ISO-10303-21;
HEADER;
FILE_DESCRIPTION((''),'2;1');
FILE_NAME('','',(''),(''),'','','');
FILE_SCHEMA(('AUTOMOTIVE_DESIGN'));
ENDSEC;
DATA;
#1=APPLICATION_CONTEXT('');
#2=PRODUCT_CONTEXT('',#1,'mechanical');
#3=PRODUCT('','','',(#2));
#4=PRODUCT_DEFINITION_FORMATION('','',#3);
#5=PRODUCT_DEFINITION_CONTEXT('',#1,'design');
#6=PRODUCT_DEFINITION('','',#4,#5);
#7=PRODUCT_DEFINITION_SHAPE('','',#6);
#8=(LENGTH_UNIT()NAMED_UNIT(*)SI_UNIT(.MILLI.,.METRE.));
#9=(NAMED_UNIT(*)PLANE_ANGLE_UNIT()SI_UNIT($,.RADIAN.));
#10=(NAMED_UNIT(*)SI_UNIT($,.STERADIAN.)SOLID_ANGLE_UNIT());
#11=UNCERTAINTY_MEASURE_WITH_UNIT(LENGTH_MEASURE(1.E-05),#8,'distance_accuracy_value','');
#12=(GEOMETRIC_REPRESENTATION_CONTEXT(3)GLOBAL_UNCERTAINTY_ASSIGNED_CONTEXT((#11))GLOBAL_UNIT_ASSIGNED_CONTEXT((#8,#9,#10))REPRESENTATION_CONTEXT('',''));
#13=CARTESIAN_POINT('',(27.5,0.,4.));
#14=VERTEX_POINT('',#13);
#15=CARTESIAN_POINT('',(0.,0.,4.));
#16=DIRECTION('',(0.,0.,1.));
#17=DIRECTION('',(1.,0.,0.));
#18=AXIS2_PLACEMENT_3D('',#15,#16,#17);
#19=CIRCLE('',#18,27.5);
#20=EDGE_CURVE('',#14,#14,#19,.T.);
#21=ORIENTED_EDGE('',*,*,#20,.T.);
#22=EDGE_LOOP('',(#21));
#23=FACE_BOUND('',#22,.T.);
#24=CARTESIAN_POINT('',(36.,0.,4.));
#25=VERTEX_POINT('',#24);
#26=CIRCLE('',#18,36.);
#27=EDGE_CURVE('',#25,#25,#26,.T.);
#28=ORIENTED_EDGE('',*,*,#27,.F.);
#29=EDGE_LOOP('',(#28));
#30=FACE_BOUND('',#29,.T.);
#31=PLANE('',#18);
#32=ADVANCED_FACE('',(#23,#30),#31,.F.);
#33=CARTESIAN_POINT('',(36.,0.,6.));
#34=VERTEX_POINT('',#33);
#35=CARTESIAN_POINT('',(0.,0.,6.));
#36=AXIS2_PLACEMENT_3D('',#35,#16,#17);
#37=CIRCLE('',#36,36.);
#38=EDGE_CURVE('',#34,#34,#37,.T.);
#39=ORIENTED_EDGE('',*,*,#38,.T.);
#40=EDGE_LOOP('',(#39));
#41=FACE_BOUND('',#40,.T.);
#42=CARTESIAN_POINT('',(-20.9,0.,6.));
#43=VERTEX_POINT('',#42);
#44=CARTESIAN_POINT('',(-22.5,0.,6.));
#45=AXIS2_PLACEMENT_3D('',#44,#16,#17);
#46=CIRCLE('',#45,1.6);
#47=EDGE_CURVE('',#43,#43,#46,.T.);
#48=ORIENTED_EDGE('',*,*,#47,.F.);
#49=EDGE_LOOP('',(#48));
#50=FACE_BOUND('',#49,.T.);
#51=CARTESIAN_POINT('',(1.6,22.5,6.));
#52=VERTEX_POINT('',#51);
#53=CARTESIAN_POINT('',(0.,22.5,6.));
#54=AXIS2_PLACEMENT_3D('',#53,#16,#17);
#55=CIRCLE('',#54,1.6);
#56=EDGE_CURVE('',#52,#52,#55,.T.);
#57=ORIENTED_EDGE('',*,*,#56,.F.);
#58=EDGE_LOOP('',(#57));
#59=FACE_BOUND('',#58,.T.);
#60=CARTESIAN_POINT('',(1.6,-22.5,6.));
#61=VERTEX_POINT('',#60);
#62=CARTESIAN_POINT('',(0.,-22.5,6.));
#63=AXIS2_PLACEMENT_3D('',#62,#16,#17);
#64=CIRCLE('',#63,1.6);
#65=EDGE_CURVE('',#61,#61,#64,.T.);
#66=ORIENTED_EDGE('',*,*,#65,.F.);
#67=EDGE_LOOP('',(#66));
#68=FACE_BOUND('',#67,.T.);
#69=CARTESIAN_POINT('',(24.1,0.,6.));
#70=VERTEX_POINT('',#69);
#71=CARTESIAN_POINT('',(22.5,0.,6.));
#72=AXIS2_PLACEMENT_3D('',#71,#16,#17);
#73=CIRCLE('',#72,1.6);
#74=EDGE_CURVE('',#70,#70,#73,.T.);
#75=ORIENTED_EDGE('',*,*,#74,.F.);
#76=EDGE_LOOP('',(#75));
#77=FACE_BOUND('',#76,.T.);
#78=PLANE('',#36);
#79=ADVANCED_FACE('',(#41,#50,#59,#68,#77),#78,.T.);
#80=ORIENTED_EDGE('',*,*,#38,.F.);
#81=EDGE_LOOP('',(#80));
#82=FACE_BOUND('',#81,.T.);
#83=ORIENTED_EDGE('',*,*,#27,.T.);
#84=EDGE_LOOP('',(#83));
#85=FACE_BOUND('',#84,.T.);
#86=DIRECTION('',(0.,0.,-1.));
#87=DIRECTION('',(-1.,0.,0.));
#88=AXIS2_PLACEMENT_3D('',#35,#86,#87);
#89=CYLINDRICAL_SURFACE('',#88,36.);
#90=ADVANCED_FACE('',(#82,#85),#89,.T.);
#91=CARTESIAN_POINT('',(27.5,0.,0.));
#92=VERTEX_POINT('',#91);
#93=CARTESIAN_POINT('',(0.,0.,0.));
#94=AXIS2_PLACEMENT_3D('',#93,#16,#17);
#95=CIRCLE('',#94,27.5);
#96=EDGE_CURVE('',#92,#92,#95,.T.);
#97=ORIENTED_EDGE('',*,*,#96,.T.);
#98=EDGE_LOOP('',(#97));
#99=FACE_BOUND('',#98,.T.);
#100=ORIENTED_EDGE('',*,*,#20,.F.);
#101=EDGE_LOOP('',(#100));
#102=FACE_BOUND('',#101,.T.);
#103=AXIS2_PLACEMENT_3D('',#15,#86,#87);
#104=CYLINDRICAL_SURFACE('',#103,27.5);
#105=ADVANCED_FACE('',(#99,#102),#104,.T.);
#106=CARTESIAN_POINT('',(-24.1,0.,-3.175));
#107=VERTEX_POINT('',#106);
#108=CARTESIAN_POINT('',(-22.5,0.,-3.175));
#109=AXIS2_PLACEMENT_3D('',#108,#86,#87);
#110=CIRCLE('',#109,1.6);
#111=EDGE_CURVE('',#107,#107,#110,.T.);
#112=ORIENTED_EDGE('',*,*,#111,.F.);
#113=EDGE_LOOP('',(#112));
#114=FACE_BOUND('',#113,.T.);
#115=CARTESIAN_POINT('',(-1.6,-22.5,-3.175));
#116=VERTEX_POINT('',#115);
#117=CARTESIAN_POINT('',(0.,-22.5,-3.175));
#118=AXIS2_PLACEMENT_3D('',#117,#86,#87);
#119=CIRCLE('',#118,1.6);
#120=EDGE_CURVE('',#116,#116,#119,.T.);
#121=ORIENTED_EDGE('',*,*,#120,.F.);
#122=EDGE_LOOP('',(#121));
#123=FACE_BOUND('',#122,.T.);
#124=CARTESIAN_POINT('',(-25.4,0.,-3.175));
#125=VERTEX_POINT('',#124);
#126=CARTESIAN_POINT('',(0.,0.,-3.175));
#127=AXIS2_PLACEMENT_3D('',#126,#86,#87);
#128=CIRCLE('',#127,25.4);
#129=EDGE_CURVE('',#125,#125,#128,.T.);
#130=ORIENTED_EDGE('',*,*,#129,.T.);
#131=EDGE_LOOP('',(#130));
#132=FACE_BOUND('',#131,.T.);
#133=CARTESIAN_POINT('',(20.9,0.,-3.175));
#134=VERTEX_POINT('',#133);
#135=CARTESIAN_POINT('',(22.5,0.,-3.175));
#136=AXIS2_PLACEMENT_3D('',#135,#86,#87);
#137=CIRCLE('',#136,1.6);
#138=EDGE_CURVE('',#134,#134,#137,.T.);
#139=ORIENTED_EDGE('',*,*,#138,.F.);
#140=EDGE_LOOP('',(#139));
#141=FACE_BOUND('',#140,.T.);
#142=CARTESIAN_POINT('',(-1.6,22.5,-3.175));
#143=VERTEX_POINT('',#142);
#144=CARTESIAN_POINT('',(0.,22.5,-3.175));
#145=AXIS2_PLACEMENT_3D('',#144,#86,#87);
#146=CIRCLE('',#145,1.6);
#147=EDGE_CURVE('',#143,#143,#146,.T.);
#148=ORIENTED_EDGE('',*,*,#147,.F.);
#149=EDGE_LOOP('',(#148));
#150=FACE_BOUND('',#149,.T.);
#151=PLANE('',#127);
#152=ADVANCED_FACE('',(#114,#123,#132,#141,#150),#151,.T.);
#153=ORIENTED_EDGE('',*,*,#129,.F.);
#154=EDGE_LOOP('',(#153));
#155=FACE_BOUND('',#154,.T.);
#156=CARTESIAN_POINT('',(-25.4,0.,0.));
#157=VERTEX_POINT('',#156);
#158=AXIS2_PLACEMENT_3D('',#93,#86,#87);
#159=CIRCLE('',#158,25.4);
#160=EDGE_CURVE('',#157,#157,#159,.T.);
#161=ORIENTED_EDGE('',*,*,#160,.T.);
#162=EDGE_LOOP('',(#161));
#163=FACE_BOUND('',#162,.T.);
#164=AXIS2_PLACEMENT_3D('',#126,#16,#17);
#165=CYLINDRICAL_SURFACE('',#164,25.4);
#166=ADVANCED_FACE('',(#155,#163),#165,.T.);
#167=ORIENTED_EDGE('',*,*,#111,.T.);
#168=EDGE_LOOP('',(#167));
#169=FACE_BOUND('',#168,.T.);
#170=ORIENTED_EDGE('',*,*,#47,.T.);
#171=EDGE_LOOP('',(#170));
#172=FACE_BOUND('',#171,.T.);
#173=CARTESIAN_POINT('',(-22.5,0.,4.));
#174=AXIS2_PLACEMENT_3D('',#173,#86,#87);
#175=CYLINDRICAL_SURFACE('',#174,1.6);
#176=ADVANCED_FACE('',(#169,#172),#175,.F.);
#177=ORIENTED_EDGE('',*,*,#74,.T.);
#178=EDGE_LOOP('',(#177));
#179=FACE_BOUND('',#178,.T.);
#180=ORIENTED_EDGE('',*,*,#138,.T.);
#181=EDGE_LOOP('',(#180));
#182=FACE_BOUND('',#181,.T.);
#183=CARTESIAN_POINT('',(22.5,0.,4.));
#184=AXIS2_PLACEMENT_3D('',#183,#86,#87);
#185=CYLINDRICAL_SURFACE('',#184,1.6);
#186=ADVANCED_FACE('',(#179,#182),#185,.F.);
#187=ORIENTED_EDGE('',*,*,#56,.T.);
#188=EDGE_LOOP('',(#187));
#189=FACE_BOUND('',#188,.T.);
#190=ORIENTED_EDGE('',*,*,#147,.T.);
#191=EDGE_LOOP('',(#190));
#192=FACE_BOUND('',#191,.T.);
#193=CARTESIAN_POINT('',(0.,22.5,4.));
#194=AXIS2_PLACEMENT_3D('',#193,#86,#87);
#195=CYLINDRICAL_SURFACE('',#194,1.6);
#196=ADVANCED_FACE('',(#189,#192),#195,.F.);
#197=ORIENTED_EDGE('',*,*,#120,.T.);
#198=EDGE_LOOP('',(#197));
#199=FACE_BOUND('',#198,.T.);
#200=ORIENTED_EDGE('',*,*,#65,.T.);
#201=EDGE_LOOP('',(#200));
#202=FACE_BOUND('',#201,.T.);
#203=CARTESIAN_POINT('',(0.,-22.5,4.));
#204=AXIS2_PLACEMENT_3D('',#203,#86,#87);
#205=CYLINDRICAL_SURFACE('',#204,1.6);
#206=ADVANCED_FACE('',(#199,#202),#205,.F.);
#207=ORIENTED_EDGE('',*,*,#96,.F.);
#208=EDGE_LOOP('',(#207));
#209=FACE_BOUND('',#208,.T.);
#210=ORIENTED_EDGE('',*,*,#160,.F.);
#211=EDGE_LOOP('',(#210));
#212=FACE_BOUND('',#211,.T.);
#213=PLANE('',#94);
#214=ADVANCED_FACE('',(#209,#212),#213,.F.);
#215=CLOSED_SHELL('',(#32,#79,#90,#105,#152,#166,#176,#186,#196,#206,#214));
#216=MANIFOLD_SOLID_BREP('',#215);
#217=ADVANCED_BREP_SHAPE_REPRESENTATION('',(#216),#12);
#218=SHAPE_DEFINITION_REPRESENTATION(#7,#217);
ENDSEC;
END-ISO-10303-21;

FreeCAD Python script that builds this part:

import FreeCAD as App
import Part
import Sketcher

V = App.Vector
Q = App.Units.Quantity

doc = App.newDocument("Part")
body = doc.addObject("PartDesign::Body", "Body")

# Sketch on XY plane
sketch1 = body.newObject("Sketcher::SketchObject", "Sketch")
sketch1.AttachmentSupport = (doc.getObject("XY_Plane"), [""])
sketch1.MapMode = "FlatFace"
sketch1.addGeometry(Part.Circle(V(0, 0, 0), V(0, 0, 1), 27.5), False)
sketch1.addConstraint(Sketcher.Constraint("Coincident", 0, 3, -1, 1))
sketch1.addConstraint(Sketcher.Constraint("Diameter", 0, Q("55 mm")))
pad1 = body.newObject("PartDesign::Pad", "Pad")
pad1.Profile = sketch1
pad1.Length = 4

# Sketch on XY plane
sketch2 = body.newObject("Sketcher::SketchObject", "Sketch001")
sketch2.AttachmentSupport = (doc.getObject("XY_Plane"), [""])
sketch2.MapMode = "FlatFace"
sketch2.addGeometry(Part.Circle(V(0, 0, 0), V(0, 0, 1), 25.4), False)
sketch2.addConstraint(Sketcher.Constraint("Coincident", 0, 3, -1, 1))
sketch2.addConstraint(Sketcher.Constraint("Diameter", 0, Q("50.8 mm")))
pad2 = body.newObject("PartDesign::Pad", "Pad001")
pad2.Profile = sketch2
pad2.Length = 3.175
pad2.Reversed = True

# Sketch on XY plane
sketch3 = body.newObject("Sketcher::SketchObject", "Sketch002")
sketch3.AttachmentSupport = (doc.getObject("XY_Plane"), [""])
sketch3.MapMode = "FlatFace"
sketch3.AttachmentOffset = App.Placement(V(0, 0, -3.175), App.Rotation())
sketch3.addGeometry(Part.Circle(V(0, 22.5, 0), V(0, 0, 1), 1.6), False)
sketch3.addGeometry(Part.Circle(V(-22.5, 0, 0), V(0, 0, 1), 1.6), False)
sketch3.addGeometry(Part.Circle(V(0, -22.5, 0), V(0, 0, 1), 1.6), False)
sketch3.addGeometry(Part.Circle(V(22.5, 0, 0), V(0, 0, 1), 1.6), False)
sketch3.addConstraint(Sketcher.Constraint("Equal", 0, 1))
sketch3.addConstraint(Sketcher.Constraint("Equal", 1, 2))
sketch3.addConstraint(Sketcher.Constraint("Equal", 2, 3))
sketch3.addConstraint(Sketcher.Constraint("Symmetric", 0, 3, 2, 3, -1, 1))
sketch3.addConstraint(Sketcher.Constraint("Symmetric", 1, 3, 3, 3, -1, 1))
sketch3.addConstraint(Sketcher.Constraint("PointOnObject", 0, 3, -2))
sketch3.addConstraint(Sketcher.Constraint("PointOnObject", 1, 3, -1))
sketch3.addConstraint(Sketcher.Constraint("Diameter", 0, Q("3.2 mm")))
sketch3.addConstraint(Sketcher.Constraint("DistanceY", 2, 3, 0, 3, Q("45 mm")))
sketch3.addConstraint(Sketcher.Constraint("DistanceX", 1, 3, 3, 3, Q("45 mm")))
pocket1 = body.newObject("PartDesign::Pocket", "Pocket")
pocket1.Profile = sketch3
pocket1.Type = "ThroughAll"
pocket1.Reversed = True

# Sketch on XY plane
sketch4 = body.newObject("Sketcher::SketchObject", "Sketch003")
sketch4.AttachmentSupport = (doc.getObject("XY_Plane"), [""])
sketch4.MapMode = "FlatFace"
sketch4.AttachmentOffset = App.Placement(V(0, 0, 4), App.Rotation())
sketch4.addGeometry(Part.Circle(V(0, 0, 0), V(0, 0, 1), 36), False)
sketch4.addGeometry(Part.Circle(V(0, -22.5, 0), V(0, 0, 1), 1.6), False)
sketch4.addGeometry(Part.Circle(V(-22.5, 0, 0), V(0, 0, 1), 1.6), False)
sketch4.addGeometry(Part.Circle(V(22.5, 0, 0), V(0, 0, 1), 1.6), False)
sketch4.addGeometry(Part.Circle(V(0, 22.5, 0), V(0, 0, 1), 1.6), False)
sketch4.addConstraint(Sketcher.Constraint("Coincident", 0, 3, -1, 1))
sketch4.addConstraint(Sketcher.Constraint("Equal", 1, 2))
sketch4.addConstraint(Sketcher.Constraint("Equal", 2, 3))
sketch4.addConstraint(Sketcher.Constraint("Equal", 3, 4))
sketch4.addConstraint(Sketcher.Constraint("Symmetric", 2, 3, 3, 3, -1, 1))
sketch4.addConstraint(Sketcher.Constraint("Symmetric", 1, 3, 4, 3, -1, 1))
sketch4.addConstraint(Sketcher.Constraint("PointOnObject", 1, 3, -2))
sketch4.addConstraint(Sketcher.Constraint("PointOnObject", 2, 3, -1))
sketch4.addConstraint(Sketcher.Constraint("Diameter", 0, Q("72 mm")))
sketch4.addConstraint(Sketcher.Constraint("Diameter", 1, Q("3.2 mm")))
sketch4.addConstraint(Sketcher.Constraint("DistanceX", 2, 3, 3, 3, Q("45 mm")))
sketch4.addConstraint(Sketcher.Constraint("DistanceY", 1, 3, 4, 3, Q("45 mm")))
pad3 = body.newObject("PartDesign::Pad", "Pad002")
pad3.Profile = sketch4
pad3.Length = 2

doc.recompute()
